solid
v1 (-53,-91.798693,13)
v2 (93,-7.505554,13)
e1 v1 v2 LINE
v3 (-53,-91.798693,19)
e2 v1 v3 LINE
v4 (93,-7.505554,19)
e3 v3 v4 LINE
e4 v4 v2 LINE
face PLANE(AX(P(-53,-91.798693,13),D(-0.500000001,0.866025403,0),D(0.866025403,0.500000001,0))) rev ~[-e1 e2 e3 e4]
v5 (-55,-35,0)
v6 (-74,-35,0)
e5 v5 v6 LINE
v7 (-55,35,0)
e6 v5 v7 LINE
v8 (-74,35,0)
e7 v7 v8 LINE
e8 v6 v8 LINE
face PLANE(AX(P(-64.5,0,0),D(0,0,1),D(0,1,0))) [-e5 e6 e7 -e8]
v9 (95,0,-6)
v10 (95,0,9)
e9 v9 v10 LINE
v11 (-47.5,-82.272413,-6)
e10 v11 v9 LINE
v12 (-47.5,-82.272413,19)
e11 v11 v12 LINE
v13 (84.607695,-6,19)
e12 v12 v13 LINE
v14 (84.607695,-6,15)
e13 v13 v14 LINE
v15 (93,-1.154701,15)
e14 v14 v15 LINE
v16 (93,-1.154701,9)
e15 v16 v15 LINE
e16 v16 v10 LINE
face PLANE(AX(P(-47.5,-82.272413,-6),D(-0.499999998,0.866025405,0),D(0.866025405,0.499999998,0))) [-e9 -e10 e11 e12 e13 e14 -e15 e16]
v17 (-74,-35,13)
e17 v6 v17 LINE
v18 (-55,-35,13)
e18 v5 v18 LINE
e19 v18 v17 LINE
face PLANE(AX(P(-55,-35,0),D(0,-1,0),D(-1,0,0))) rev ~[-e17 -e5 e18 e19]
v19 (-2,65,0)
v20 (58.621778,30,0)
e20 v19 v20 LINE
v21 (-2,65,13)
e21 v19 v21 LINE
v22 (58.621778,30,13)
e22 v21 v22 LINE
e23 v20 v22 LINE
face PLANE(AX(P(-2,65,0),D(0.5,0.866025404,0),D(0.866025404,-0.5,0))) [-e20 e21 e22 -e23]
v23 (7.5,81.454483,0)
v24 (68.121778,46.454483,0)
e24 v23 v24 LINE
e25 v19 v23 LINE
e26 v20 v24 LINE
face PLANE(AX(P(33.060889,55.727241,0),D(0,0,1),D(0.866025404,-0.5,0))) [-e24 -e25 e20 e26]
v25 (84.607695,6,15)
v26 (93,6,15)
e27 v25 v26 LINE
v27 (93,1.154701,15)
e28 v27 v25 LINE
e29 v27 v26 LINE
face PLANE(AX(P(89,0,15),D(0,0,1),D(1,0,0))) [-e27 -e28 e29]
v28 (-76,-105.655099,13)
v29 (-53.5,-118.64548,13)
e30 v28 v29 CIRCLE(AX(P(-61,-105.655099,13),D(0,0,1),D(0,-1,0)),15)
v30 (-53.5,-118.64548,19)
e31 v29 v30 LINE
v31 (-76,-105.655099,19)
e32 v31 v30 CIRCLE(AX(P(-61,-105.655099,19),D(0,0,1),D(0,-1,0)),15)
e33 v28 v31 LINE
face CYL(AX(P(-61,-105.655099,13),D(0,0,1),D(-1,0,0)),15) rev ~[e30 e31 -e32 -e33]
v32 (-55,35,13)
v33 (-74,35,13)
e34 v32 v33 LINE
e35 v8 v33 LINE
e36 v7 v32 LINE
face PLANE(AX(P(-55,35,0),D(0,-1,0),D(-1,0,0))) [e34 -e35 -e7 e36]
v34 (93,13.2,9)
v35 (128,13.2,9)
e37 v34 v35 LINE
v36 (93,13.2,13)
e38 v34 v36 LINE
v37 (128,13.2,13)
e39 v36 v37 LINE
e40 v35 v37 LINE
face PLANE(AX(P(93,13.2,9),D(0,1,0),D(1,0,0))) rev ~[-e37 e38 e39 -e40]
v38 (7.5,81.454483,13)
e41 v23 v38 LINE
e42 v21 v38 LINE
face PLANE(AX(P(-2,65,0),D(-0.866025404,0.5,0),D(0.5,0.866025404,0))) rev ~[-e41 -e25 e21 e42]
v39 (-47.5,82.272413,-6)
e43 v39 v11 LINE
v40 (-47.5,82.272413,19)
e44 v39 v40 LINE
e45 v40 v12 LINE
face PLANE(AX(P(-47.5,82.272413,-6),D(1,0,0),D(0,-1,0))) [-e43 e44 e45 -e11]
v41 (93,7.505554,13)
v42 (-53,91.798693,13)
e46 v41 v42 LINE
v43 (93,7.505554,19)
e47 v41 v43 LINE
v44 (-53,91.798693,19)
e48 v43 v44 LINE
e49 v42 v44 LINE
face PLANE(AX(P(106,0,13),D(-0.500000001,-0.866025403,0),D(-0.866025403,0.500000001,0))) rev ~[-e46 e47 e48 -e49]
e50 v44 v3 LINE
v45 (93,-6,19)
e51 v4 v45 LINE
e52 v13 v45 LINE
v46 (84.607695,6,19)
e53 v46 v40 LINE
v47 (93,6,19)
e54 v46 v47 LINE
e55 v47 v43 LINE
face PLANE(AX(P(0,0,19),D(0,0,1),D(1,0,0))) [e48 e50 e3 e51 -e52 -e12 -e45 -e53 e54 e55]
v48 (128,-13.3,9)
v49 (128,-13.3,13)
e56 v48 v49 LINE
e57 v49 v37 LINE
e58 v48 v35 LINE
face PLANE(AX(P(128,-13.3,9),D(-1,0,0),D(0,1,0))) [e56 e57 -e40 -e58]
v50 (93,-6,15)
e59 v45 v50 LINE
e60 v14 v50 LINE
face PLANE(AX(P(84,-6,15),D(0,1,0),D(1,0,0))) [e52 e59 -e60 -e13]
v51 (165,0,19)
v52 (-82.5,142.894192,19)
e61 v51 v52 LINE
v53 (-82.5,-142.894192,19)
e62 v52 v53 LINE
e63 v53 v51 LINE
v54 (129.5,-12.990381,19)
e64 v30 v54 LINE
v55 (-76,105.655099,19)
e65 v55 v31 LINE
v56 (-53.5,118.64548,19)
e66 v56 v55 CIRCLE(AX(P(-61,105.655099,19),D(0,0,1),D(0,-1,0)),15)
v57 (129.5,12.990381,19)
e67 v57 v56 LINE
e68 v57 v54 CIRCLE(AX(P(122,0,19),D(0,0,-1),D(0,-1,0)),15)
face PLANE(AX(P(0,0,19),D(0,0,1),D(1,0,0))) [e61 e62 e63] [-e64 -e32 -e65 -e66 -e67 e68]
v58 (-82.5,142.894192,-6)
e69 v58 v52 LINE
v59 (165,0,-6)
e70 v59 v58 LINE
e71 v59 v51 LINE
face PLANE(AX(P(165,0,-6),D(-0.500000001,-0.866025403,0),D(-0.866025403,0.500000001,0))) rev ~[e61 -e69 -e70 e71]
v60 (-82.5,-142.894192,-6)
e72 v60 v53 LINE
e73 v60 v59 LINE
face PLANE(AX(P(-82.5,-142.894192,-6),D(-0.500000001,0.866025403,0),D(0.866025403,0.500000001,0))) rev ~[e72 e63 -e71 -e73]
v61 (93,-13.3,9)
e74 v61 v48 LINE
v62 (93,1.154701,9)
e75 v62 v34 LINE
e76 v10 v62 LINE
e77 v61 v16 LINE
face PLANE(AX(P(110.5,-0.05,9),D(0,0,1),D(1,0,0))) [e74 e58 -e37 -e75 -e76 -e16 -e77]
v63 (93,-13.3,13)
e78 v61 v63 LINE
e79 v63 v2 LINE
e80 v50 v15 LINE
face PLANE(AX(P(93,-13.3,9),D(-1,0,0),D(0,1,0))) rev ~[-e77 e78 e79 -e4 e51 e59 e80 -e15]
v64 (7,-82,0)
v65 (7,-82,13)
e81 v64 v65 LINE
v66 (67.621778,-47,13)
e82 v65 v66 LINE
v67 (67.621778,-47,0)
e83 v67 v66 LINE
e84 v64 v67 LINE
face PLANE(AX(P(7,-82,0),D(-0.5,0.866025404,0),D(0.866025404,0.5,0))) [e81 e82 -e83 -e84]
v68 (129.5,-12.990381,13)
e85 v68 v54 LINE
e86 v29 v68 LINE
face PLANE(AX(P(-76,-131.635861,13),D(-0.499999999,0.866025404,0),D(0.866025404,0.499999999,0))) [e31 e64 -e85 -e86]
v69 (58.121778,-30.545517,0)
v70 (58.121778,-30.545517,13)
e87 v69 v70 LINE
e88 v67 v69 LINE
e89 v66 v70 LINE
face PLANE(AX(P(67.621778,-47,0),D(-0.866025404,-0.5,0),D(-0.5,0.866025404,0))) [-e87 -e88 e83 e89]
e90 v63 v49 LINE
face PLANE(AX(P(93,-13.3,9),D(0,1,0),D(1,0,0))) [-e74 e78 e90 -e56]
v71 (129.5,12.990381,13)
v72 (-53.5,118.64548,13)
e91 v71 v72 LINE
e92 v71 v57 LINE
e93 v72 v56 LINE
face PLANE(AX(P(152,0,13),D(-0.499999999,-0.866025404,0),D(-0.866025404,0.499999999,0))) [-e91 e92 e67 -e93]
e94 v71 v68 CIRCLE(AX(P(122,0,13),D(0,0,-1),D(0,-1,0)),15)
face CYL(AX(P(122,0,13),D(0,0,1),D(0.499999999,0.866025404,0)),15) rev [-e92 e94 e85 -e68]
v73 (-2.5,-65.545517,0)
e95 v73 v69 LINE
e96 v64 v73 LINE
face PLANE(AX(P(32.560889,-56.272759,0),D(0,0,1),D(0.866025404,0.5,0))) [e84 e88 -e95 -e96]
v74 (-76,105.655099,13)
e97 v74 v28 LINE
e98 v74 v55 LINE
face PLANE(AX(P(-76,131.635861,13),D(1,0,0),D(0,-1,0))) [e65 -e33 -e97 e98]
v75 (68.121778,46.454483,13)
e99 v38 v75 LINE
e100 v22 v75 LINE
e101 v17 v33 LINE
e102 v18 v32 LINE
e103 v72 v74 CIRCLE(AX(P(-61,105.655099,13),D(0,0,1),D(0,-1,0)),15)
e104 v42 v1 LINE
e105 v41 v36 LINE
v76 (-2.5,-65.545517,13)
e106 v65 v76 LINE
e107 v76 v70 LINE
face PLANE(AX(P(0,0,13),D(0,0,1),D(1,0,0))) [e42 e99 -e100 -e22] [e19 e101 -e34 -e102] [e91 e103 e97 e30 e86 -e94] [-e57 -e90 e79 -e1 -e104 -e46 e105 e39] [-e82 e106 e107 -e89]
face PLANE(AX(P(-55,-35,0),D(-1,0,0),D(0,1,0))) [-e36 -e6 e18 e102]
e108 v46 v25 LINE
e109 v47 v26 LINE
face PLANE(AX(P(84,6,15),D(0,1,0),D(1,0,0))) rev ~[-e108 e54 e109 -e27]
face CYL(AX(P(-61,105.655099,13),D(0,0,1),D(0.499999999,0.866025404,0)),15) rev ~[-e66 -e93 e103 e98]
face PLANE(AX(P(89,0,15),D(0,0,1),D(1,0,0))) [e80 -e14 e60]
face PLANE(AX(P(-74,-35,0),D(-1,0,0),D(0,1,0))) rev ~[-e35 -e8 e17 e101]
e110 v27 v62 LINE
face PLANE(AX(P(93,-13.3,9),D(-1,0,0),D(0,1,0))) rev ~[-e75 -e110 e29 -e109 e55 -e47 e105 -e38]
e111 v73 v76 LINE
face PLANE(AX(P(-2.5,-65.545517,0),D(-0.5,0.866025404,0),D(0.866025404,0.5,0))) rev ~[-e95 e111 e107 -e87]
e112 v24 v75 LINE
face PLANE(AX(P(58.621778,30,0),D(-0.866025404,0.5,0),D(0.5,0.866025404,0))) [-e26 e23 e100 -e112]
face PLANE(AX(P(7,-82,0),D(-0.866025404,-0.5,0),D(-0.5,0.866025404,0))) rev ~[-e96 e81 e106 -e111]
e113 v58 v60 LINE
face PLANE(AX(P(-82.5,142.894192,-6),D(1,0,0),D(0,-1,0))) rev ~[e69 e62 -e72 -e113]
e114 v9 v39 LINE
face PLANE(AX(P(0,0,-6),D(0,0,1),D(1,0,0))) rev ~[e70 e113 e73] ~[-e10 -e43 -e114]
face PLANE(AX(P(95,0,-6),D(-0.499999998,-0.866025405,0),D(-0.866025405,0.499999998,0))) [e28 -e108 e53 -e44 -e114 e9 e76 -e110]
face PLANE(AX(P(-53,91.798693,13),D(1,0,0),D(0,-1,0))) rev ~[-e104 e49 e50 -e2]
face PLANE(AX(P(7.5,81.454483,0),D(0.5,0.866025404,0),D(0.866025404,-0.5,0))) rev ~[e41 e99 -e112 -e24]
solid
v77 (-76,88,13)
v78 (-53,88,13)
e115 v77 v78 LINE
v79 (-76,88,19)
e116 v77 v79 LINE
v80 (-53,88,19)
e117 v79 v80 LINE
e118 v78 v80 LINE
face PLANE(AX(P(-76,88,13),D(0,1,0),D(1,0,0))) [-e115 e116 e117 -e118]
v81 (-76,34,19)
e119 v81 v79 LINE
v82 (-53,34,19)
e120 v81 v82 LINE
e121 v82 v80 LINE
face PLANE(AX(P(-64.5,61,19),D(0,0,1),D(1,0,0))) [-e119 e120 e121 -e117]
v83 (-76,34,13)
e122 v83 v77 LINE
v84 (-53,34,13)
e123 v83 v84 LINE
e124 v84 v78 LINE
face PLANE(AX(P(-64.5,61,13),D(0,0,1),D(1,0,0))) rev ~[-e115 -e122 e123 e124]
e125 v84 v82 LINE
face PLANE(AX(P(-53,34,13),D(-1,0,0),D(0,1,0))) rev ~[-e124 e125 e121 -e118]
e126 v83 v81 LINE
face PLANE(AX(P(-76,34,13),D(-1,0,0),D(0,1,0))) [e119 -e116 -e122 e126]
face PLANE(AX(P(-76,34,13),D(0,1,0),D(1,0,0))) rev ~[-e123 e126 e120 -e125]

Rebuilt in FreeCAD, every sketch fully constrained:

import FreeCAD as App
import Part
import Sketcher
Q = App.Units.Quantity


def edges_at(feature, points):
    """Names of the edges that pass closest to the given points."""
    edges = feature.Shape.Edges
    near = lambda p: min(range(len(edges)), key=lambda i: edges[i].distToShape(Part.Vertex(*p))[0])
    return sorted({f"Edge{near(p) + 1}" for p in points})


def add_polygon(sketch, points):
    """Adds a closed chain of lines whose ends are joined by coincident constraints."""
    first, n = sketch.GeometryCount, len(points)
    for a, b in zip(points, points[1:] + points[:1]):
        sketch.addGeometry(Part.LineSegment(App.Vector(*a, 0), App.Vector(*b, 0)), False)
    for i in range(n):
        sketch.addConstraint(Sketcher.Constraint("Coincident", first + i, 2, first + (i + 1) % n, 1))

doc = App.newDocument("Part")
body = doc.addObject("PartDesign::Body", "Body")

# Sketch on XY plane
sketch1 = body.newObject("Sketcher::SketchObject", "Sketch")
sketch1.AttachmentSupport = (doc.getObject("XY_Plane"), [""])
sketch1.MapMode = "FlatFace"
sketch1.AttachmentOffset = App.Placement(App.Vector(0, 0, 13), App.Rotation())
add_polygon(sketch1, [(-76, 88), (-76, 34), (-53, 34), (-53, 88)])  # lines 0-3
sketch1.addConstraint(Sketcher.Constraint("Vertical", 0))
sketch1.addConstraint(Sketcher.Constraint("Horizontal", 1))
sketch1.addConstraint(Sketcher.Constraint("Vertical", 2))
sketch1.addConstraint(Sketcher.Constraint("Horizontal", 3))
sketch1.addConstraint(Sketcher.Constraint("DistanceX", 1, 1, 1, 2, Q("23 mm")))
sketch1.addConstraint(Sketcher.Constraint("DistanceY", 0, 2, 0, 1, Q("54 mm")))
sketch1.addConstraint(Sketcher.Constraint("DistanceX", 0, 2, -1, 1, Q("76 mm")))
sketch1.addConstraint(Sketcher.Constraint("DistanceY", -1, 1, 0, 2, Q("34 mm")))
pad1 = body.newObject("PartDesign::Pad", "Pad")
pad1.Profile = sketch1
pad1.Length = 6
body2 = doc.addObject("PartDesign::Body", "Body001")

# Sketch on XY plane
sketch2 = body2.newObject("Sketcher::SketchObject", "Sketch001")
sketch2.AttachmentSupport = (doc.getObject("XY_Plane001"), [""])
sketch2.MapMode = "FlatFace"
sketch2.AttachmentOffset = App.Placement(App.Vector(0, 0, 13), App.Rotation())
add_polygon(sketch2, [(106, 0), (-53, 92), (-53, -92)])  # lines 0-2
sketch2.addConstraint(Sketcher.Constraint("Vertical", 1))
sketch2.addConstraint(Sketcher.Constraint("PointOnObject", 2, 2, -1))
sketch2.addConstraint(Sketcher.Constraint("Equal", 0, 2))
sketch2.addConstraint(Sketcher.Constraint("Angle", 0, Q("150 deg")))
sketch2.addConstraint(Sketcher.Constraint("DistanceX", 0, 2, -1, 1, Q("53 mm")))
sketch2.addConstraint(Sketcher.Constraint("DistanceX", -1, 1, 2, 2, Q("106 mm")))
pad2 = body2.newObject("PartDesign::Pad", "Pad001")
pad2.Profile = sketch2
pad2.Length = 6
body3 = doc.addObject("PartDesign::Body", "Body002")

# Sketch on XY plane
sketch3 = body3.newObject("Sketcher::SketchObject", "Sketch002")
sketch3.AttachmentSupport = (doc.getObject("XY_Plane002"), [""])
sketch3.MapMode = "FlatFace"
sketch3.AttachmentOffset = App.Placement(App.Vector(0, 0, 13), App.Rotation())
add_polygon(sketch3, [(152, 0), (-76, 132), (-76, -132)])  # lines 0-2
sketch3.addConstraint(Sketcher.Constraint("Vertical", 1))
sketch3.addConstraint(Sketcher.Constraint("PointOnObject", 2, 2, -1))
sketch3.addConstraint(Sketcher.Constraint("Equal", 0, 2))
sketch3.addConstraint(Sketcher.Constraint("Angle", 0, Q("150 deg")))
sketch3.addConstraint(Sketcher.Constraint("DistanceX", 0, 2, -1, 1, Q("76 mm")))
sketch3.addConstraint(Sketcher.Constraint("DistanceX", -1, 1, 2, 2, Q("152 mm")))
pad3 = body3.newObject("PartDesign::Pad", "Pad002")
pad3.Profile = sketch3
pad3.Length = 6
doc.recompute()

boolean = body3.newObject("PartDesign::Boolean", "Boolean")
boolean.Type = "Cut"
boolean.addObjects([body2])
body4 = doc.addObject("PartDesign::Body", "Body003")

# Sketch on XY plane
sketch4 = body4.newObject("Sketcher::SketchObject", "Sketch003")
sketch4.AttachmentSupport = (doc.getObject("XY_Plane003"), [""])
sketch4.MapMode = "FlatFace"
sketch4.AttachmentOffset = App.Placement(App.Vector(0, 0, 15), App.Rotation())
add_polygon(sketch4, [(84, 6), (84, -6), (94, -6), (94, 6)])  # lines 0-3
sketch4.addConstraint(Sketcher.Constraint("Vertical", 0))
sketch4.addConstraint(Sketcher.Constraint("Horizontal", 1))
sketch4.addConstraint(Sketcher.Constraint("Vertical", 2))
sketch4.addConstraint(Sketcher.Constraint("Horizontal", 3))
sketch4.addConstraint(Sketcher.Constraint("DistanceX", 1, 1, 1, 2, Q("10 mm")))
sketch4.addConstraint(Sketcher.Constraint("DistanceY", 0, 2, 0, 1, Q("12 mm")))
sketch4.addConstraint(Sketcher.Constraint("DistanceX", -1, 1, 0, 2, Q("84 mm")))
sketch4.addConstraint(Sketcher.Constraint("DistanceY", 0, 2, -1, 1, Q("6 mm")))
pad4 = body4.newObject("PartDesign::Pad", "Pad003")
pad4.Profile = sketch4
pad4.Length = 4
body5 = doc.addObject("PartDesign::Body", "Body004")

# Sketch on XY plane
sketch5 = body5.newObject("Sketcher::SketchObject", "Sketch004")
sketch5.AttachmentSupport = (doc.getObject("XY_Plane004"), [""])
sketch5.MapMode = "FlatFace"
sketch5.AttachmentOffset = App.Placement(App.Vector(0, 0, 9), App.Rotation())
add_polygon(sketch5, [(93, 13), (93, -13), (128, -13), (128, 13)])  # lines 0-3
sketch5.addConstraint(Sketcher.Constraint("Vertical", 0))
sketch5.addConstraint(Sketcher.Constraint("Horizontal", 1))
sketch5.addConstraint(Sketcher.Constraint("Vertical", 2))
sketch5.addConstraint(Sketcher.Constraint("Horizontal", 3))
sketch5.addConstraint(Sketcher.Constraint("DistanceX", 1, 1, 1, 2, Q("35 mm")))
sketch5.addConstraint(Sketcher.Constraint("DistanceY", 0, 2, 0, 1, Q("26.5 mm")))
sketch5.addConstraint(Sketcher.Constraint("DistanceX", -1, 1, 0, 2, Q("93 mm")))
sketch5.addConstraint(Sketcher.Constraint("DistanceY", 0, 2, -1, 1, Q("13.3 mm")))
pad5 = body5.newObject("PartDesign::Pad", "Pad004")
pad5.Profile = sketch5
pad5.Length = 10
body6 = doc.addObject("PartDesign::Body", "Body005")

# Sketch on XY plane
sketch6 = body6.newObject("Sketcher::SketchObject", "Sketch005")
sketch6.AttachmentSupport = (doc.getObject("XY_Plane005"), [""])
sketch6.MapMode = "FlatFace"
add_polygon(sketch6, [(0, 19), (0, 0), (70, 0), (70, 19)])  # lines 0-3
sketch6.addConstraint(Sketcher.Constraint("Vertical", 0))
sketch6.addConstraint(Sketcher.Constraint("Horizontal", 1))
sketch6.addConstraint(Sketcher.Constraint("Vertical", 2))
sketch6.addConstraint(Sketcher.Constraint("Horizontal", 3))
sketch6.addConstraint(Sketcher.Constraint("Coincident", 0, 2, -1, 1))
sketch6.addConstraint(Sketcher.Constraint("DistanceX", 1, 1, 1, 2, Q("70 mm")))
sketch6.addConstraint(Sketcher.Constraint("DistanceY", 0, 2, 0, 1, Q("19 mm")))
pad6 = body6.newObject("PartDesign::Pad", "Pad005")
pad6.Profile = sketch6
pad6.Length = 19
body7 = doc.addObject("PartDesign::Body", "Body006")
doc.recompute()

body6.Placement = App.Placement(App.Vector(7, -82, 0), App.Rotation(App.Vector(0, 0, 1), 30))
boolean2 = body7.newObject("PartDesign::Boolean", "Boolean001")
boolean2.Type = "Fuse"
boolean2.addObjects([body6])
body8 = doc.addObject("PartDesign::Body", "Body007")

# Sketch on XY plane
sketch7 = body8.newObject("Sketcher::SketchObject", "Sketch006")
sketch7.AttachmentSupport = (doc.getObject("XY_Plane007"), [""])
sketch7.MapMode = "FlatFace"
add_polygon(sketch7, [(0, 19), (0, 0), (70, 0), (70, 19)])  # lines 0-3
sketch7.addConstraint(Sketcher.Constraint("Vertical", 0))
sketch7.addConstraint(Sketcher.Constraint("Horizontal", 1))
sketch7.addConstraint(Sketcher.Constraint("Vertical", 2))
sketch7.addConstraint(Sketcher.Constraint("Horizontal", 3))
sketch7.addConstraint(Sketcher.Constraint("Coincident", 0, 2, -1, 1))
sketch7.addConstraint(Sketcher.Constraint("DistanceX", 1, 1, 1, 2, Q("70 mm")))
sketch7.addConstraint(Sketcher.Constraint("DistanceY", 0, 2, 0, 1, Q("19 mm")))
pad7 = body8.newObject("PartDesign::Pad", "Pad006")
pad7.Profile = sketch7
pad7.Length = 19
body9 = doc.addObject("PartDesign::Body", "Body008")
doc.recompute()

body8.Placement = App.Placement(App.Vector(-55, -35, 0), App.Rotation(App.Vector(0, 0, 1), 90))
boolean3 = body9.newObject("PartDesign::Boolean", "Boolean002")
boolean3.Type = "Fuse"
boolean3.addObjects([body8])
body10 = doc.addObject("PartDesign::Body", "Body009")

# Sketch on XY plane
sketch8 = body10.newObject("Sketcher::SketchObject", "Sketch007")
sketch8.AttachmentSupport = (doc.getObject("XY_Plane009"), [""])
sketch8.MapMode = "FlatFace"
add_polygon(sketch8, [(0, 19), (0, 0), (70, 0), (70, 19)])  # lines 0-3
sketch8.addConstraint(Sketcher.Constraint("Vertical", 0))
sketch8.addConstraint(Sketcher.Constraint("Horizontal", 1))
sketch8.addConstraint(Sketcher.Constraint("Vertical", 2))
sketch8.addConstraint(Sketcher.Constraint("Horizontal", 3))
sketch8.addConstraint(Sketcher.Constraint("Coincident", 0, 2, -1, 1))
sketch8.addConstraint(Sketcher.Constraint("DistanceX", 1, 1, 1, 2, Q("70 mm")))
sketch8.addConstraint(Sketcher.Constraint("DistanceY", 0, 2, 0, 1, Q("19 mm")))
pad8 = body10.newObject("PartDesign::Pad", "Pad007")
pad8.Profile = sketch8
pad8.Length = 19
body11 = doc.addObject("PartDesign::Body", "Body010")
doc.recompute()

body10.Placement = App.Placement(App.Vector(-2, 65, 0), App.Rotation(App.Vector(0, 0, -1), 30))
boolean4 = body11.newObject("PartDesign::Boolean", "Boolean003")
boolean4.Type = "Fuse"
boolean4.addObjects([body10])
body12 = doc.addObject("PartDesign::Body", "Body011")

# Sketch on XY plane
sketch9 = body12.newObject("Sketcher::SketchObject", "Sketch008")
sketch9.AttachmentSupport = (doc.getObject("XY_Plane011"), [""])
sketch9.MapMode = "FlatFace"
sketch9.AttachmentOffset = App.Placement(App.Vector(0, 0, -6), App.Rotation())
add_polygon(sketch9, [(95, 0), (-48, 82), (-48, -82)])  # lines 0-2
sketch9.addConstraint(Sketcher.Constraint("Vertical", 1))
sketch9.addConstraint(Sketcher.Constraint("PointOnObject", 2, 2, -1))
sketch9.addConstraint(Sketcher.Constraint("Equal", 0, 2))
sketch9.addConstraint(Sketcher.Constraint("Angle", 0, Q("150 deg")))
sketch9.addConstraint(Sketcher.Constraint("DistanceX", -1, 1, 2, 2, Q("95 mm")))
sketch9.addConstraint(Sketcher.Constraint("DistanceX", 0, 2, -1, 1, Q("47.5 mm")))
pad9 = body12.newObject("PartDesign::Pad", "Pad008")
pad9.Profile = sketch9
pad9.Length = 25
body13 = doc.addObject("PartDesign::Body", "Body012")

# Sketch on XY plane
sketch10 = body13.newObject("Sketcher::SketchObject", "Sketch009")
sketch10.AttachmentSupport = (doc.getObject("XY_Plane012"), [""])
sketch10.MapMode = "FlatFace"
sketch10.AttachmentOffset = App.Placement(App.Vector(0, 0, -6), App.Rotation())
add_polygon(sketch10, [(165, 0), (-82, 143), (-82, -143)])  # lines 0-2
sketch10.addConstraint(Sketcher.Constraint("Vertical", 1))
sketch10.addConstraint(Sketcher.Constraint("PointOnObject", 2, 2, -1))
sketch10.addConstraint(Sketcher.Constraint("Equal", 0, 2))
sketch10.addConstraint(Sketcher.Constraint("Angle", 0, Q("150 deg")))
sketch10.addConstraint(Sketcher.Constraint("DistanceX", -1, 1, 2, 2, Q("165 mm")))
sketch10.addConstraint(Sketcher.Constraint("DistanceX", 0, 2, -1, 1, Q("82.5 mm")))
pad10 = body13.newObject("PartDesign::Pad", "Pad009")
pad10.Profile = sketch10
pad10.Length = 25
doc.recompute()

boolean5 = body13.newObject("PartDesign::Boolean", "Boolean004")
boolean5.Type = "Cut"
boolean5.addObjects([body12])
doc.recompute()

boolean6 = body13.newObject("PartDesign::Boolean", "Boolean005")
boolean6.Type = "Cut"
boolean6.addObjects([body11])
doc.recompute()

boolean7 = body13.newObject("PartDesign::Boolean", "Boolean006")
boolean7.Type = "Cut"
boolean7.addObjects([body9])
doc.recompute()

boolean8 = body13.newObject("PartDesign::Boolean", "Boolean007")
boolean8.Type = "Cut"
boolean8.addObjects([body7])
doc.recompute()

boolean9 = body13.newObject("PartDesign::Boolean", "Boolean008")
boolean9.Type = "Cut"
boolean9.addObjects([body5])
doc.recompute()

boolean10 = body13.newObject("PartDesign::Boolean", "Boolean009")
boolean10.Type = "Cut"
boolean10.addObjects([body4])
doc.recompute()

boolean11 = body13.newObject("PartDesign::Boolean", "Boolean010")
boolean11.Type = "Cut"
boolean11.addObjects([body3])
doc.recompute()

fillet = body13.newObject("PartDesign::Fillet", "Fillet")
fillet.Base = (boolean11, edges_at(boolean11, [(152, 0, 16), (-76, 131.636, 16), (-76, -131.636, 16)]))
fillet.Radius = 15

doc.recompute()
